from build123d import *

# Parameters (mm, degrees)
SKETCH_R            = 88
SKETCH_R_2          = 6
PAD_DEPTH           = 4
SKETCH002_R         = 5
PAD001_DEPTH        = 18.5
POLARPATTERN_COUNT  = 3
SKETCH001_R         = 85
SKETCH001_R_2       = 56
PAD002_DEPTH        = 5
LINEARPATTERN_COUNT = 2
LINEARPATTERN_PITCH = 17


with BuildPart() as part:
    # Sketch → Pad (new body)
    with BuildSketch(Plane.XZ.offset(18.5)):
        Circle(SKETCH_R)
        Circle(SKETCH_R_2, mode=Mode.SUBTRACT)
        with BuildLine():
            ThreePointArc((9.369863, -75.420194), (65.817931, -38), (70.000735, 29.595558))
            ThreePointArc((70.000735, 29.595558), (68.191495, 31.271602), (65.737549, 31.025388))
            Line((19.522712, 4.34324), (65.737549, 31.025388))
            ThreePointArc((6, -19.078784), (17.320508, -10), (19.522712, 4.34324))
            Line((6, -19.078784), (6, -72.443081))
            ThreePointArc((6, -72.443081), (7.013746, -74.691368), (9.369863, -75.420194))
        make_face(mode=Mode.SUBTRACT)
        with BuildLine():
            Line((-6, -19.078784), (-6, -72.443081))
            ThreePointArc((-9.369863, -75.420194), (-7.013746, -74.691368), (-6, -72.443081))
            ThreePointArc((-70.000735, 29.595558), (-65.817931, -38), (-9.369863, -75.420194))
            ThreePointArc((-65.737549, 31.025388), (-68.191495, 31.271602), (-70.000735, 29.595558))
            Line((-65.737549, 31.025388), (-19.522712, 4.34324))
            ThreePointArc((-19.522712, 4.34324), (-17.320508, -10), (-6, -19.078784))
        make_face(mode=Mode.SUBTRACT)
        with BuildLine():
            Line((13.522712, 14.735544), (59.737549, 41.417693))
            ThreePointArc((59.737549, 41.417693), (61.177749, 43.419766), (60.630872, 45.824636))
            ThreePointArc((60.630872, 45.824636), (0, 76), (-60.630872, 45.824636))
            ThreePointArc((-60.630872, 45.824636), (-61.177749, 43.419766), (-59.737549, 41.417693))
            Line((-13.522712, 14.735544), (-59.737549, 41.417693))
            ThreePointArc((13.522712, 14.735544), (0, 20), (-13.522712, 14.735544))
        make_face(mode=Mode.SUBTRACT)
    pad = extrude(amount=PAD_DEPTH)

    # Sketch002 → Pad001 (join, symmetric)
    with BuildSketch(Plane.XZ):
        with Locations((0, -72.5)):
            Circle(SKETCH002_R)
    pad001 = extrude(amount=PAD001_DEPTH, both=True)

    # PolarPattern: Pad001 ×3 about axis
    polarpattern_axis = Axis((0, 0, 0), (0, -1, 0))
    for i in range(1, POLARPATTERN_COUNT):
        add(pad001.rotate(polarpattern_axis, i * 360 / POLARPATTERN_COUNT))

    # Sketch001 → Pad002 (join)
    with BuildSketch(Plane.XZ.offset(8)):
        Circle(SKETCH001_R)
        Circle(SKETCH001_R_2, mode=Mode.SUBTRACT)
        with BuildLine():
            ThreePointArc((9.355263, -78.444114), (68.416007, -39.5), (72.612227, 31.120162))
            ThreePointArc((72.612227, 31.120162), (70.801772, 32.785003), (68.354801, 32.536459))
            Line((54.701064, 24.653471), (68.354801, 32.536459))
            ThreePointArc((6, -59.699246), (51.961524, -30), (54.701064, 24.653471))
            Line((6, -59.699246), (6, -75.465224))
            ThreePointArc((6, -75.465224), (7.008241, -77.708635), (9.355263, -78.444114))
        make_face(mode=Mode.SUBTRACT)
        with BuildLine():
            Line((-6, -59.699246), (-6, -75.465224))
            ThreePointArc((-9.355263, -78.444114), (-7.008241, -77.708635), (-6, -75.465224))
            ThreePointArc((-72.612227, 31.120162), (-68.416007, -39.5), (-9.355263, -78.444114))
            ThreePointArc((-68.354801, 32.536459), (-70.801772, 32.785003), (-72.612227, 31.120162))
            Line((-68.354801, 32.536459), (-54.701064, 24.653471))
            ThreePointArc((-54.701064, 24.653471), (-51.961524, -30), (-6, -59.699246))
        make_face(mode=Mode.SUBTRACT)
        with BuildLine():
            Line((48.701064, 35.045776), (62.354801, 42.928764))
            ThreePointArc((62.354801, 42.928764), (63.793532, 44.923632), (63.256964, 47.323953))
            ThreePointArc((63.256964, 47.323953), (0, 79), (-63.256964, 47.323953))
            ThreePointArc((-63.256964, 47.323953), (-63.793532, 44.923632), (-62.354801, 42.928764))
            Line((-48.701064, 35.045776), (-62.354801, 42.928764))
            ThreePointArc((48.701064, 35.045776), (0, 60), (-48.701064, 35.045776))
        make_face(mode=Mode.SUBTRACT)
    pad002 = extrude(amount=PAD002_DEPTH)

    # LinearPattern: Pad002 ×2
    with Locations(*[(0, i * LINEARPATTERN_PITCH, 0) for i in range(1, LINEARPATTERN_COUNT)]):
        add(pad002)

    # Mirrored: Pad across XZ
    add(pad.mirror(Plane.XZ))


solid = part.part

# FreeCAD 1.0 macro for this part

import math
import FreeCAD as App
import Part
import Sketcher
from FreeCAD import Vector
Q = App.Units.Quantity

doc = App.newDocument("Part")
params = doc.addObject("Spreadsheet::Sheet", "Params")
for row, (alias, value) in enumerate([
    ("sketch1_diameter", "176 mm"),
    ("sketch1_diameter2", "12 mm"),
    ("sketch1_radius", "20.000001 mm"),
    ("sketch1_radius2", "3 mm"),
    ("sketch1_radius3", "75.999999 mm"),
    ("pad1_length", "4 mm"),
    ("sketch2_diameter", "10 mm"),
    ("pad2_length", "37 mm"),
    ("sketch3_diameter", "170 mm"),
    ("sketch3_diameter2", "112 mm"),
    ("sketch3_radius", "60 mm"),
    ("sketch3_radius2", "3 mm"),
    ("sketch3_radius3", "79 mm"),
    ("pad3_length", "5 mm"),
    ("linearpattern_pitch", "17 mm"),
], start=1):
    params.set(f"A{row}", alias)
    params.set(f"B{row}", "=" + value)
    params.setAlias(f"B{row}", alias)

body = doc.addObject("PartDesign::Body", "Body")

# Sketch on XZ plane
sketch1 = doc.addObject("Sketcher::SketchObject", "Sketch")
body.addObject(sketch1)
sketch1.AttachmentSupport = (doc.XZ_Plane, [""])
sketch1.MapMode = "FlatFace"
sketch1.AttachmentOffset = App.Placement(Vector(0, 0, 18.5), App.Rotation())
sketch1.addGeometry([
    Part.Circle(Vector(0, 0, 0), Vector(0, 0, 1), 88),  # 0
    Part.ArcOfCircle(Part.Circle(Vector(0, 0, 0), Vector(0, 0, 1), 20), math.radians(167), math.radians(253)),  # 1
    Part.LineSegment(Vector(-6, -19.1, 0), Vector(-6, -72.4, 0)),  # 2
    Part.ArcOfCircle(Part.Circle(Vector(-9, -72.4, 0), Vector(0, 0, 1), 3), math.radians(-97), math.radians(0)),  # 3
    Part.ArcOfCircle(Part.Circle(Vector(0, 0, 0), Vector(0, 0, 1), 76), math.radians(157), math.radians(263)),  # 4
    Part.ArcOfCircle(Part.Circle(Vector(-67.2, 28.4, 0), Vector(0, 0, 1), 3), math.radians(60), math.radians(157)),  # 5
    Part.LineSegment(Vector(-65.7, 31, 0), Vector(-19.5, 4.3, 0)),  # 6
    Part.Circle(Vector(0, 0, 0), Vector(0, 0, 1), 6),  # 7
    Part.ArcOfCircle(Part.Circle(Vector(0, 0, 0), Vector(0, 0, 1), 76), math.radians(-83), math.radians(23)),  # 8
    Part.ArcOfCircle(Part.Circle(Vector(9, -72.4, 0), Vector(0, 0, 1), 3), math.radians(-180), math.radians(-83)),  # 9
    Part.LineSegment(Vector(6, -72.4, 0), Vector(6, -19.1, 0)),  # 10
    Part.ArcOfCircle(Part.Circle(Vector(0, 0, 0), Vector(0, 0, 1), 20), math.radians(-73), math.radians(13)),  # 11
    Part.LineSegment(Vector(19.5, 4.3, 0), Vector(65.7, 31, 0)),  # 12
    Part.ArcOfCircle(Part.Circle(Vector(67.2, 28.4, 0), Vector(0, 0, 1), 3), math.radians(23), math.radians(120)),  # 13
    Part.LineSegment(Vector(59.7, 41.4, 0), Vector(13.5, 14.7, 0)),  # 14
    Part.ArcOfCircle(Part.Circle(Vector(0, 0, 0), Vector(0, 0, 1), 20), math.radians(47), math.radians(133)),  # 15
    Part.LineSegment(Vector(-13.5, 14.7, 0), Vector(-59.7, 41.4, 0)),  # 16
    Part.ArcOfCircle(Part.Circle(Vector(-58.2, 44, 0), Vector(0, 0, 1), 3), math.radians(143), math.radians(240)),  # 17
    Part.ArcOfCircle(Part.Circle(Vector(0, 0, 0), Vector(0, 0, 1), 76), math.radians(37), math.radians(143)),  # 18
    Part.ArcOfCircle(Part.Circle(Vector(58.2, 44, 0), Vector(0, 0, 1), 3), math.radians(-60), math.radians(37)),  # 19
], False)
sketch1.addConstraint([
    Sketcher.Constraint("Coincident", 1, 2, 2, 1),
    Sketcher.Constraint("Tangent", 2, 2, 3, 2),
    Sketcher.Constraint("Tangent", 3, 1, 4, 2),
    Sketcher.Constraint("Tangent", 4, 1, 5, 2),
    Sketcher.Constraint("Tangent", 5, 1, 6, 1),
    Sketcher.Constraint("Coincident", 6, 2, 1, 1),
    Sketcher.Constraint("Tangent", 8, 1, 9, 2),
    Sketcher.Constraint("Tangent", 9, 1, 10, 1),
    Sketcher.Constraint("Coincident", 10, 2, 11, 1),
    Sketcher.Constraint("Coincident", 11, 2, 12, 1),
    Sketcher.Constraint("Tangent", 12, 2, 13, 2),
    Sketcher.Constraint("Tangent", 13, 1, 8, 2),
    Sketcher.Constraint("Coincident", 14, 2, 15, 1),
    Sketcher.Constraint("Coincident", 15, 2, 16, 1),
    Sketcher.Constraint("Tangent", 16, 2, 17, 2),
    Sketcher.Constraint("Tangent", 17, 1, 18, 2),
    Sketcher.Constraint("Tangent", 18, 1, 19, 2),
    Sketcher.Constraint("Tangent", 19, 1, 14, 1),
    Sketcher.Constraint("Vertical", 2),
    Sketcher.Constraint("Vertical", 10),
    Sketcher.Constraint("Coincident", 0, 3, -1, 1),
    Sketcher.Constraint("Coincident", 1, 3, -1, 1),
    Sketcher.Constraint("Coincident", 4, 3, -1, 1),
    Sketcher.Constraint("Coincident", 7, 3, -1, 1),
    Sketcher.Constraint("Coincident", 8, 3, -1, 1),
    Sketcher.Constraint("Coincident", 11, 3, -1, 1),
    Sketcher.Constraint("Coincident", 15, 3, -1, 1),
    Sketcher.Constraint("Coincident", 18, 3, -1, 1),
    Sketcher.Constraint("Equal", 3, 5),
    Sketcher.Constraint("Equal", 4, 8),
    Sketcher.Constraint("Equal", 5, 9),
    Sketcher.Constraint("Equal", 1, 11),
    Sketcher.Constraint("Equal", 9, 13),
    Sketcher.Constraint("Equal", 11, 15),
    Sketcher.Constraint("Equal", 13, 17),
    Sketcher.Constraint("Equal", 8, 18),
    Sketcher.Constraint("Equal", 17, 19),
    Sketcher.Constraint("Symmetric", 5, 1, 12, 2, -2),
    Sketcher.Constraint("Symmetric", 16, 2, 19, 1, -2),
    Sketcher.Constraint("Parallel", 12, 14),
    Sketcher.Constraint("Horizontal", 3, 3, 9, 3),
    Sketcher.Constraint("Equal", 12, 14),
    Sketcher.Constraint("Diameter", 0, 176.0),
    Sketcher.Constraint("Diameter", 7, 12.0),
    Sketcher.Constraint("Radius", 1, 20.000001),
    Sketcher.Constraint("Radius", 3, 3.0),
    Sketcher.Constraint("Radius", 4, 75.999999),
    Sketcher.Constraint("Angle", 6, Q("-29.999999 deg")),
    Sketcher.Constraint("DistanceX", 3, 3, -1, 1, 9.0),
    Sketcher.Constraint("DistanceX", 5, 3, 17, 3, 9.000001),
])
sketch1.setExpression("Constraints[42]", "Params.sketch1_diameter")
sketch1.setExpression("Constraints[43]", "Params.sketch1_diameter2")
sketch1.setExpression("Constraints[44]", "Params.sketch1_radius")
sketch1.setExpression("Constraints[45]", "Params.sketch1_radius2")
sketch1.setExpression("Constraints[46]", "Params.sketch1_radius3")
pad1 = doc.addObject("PartDesign::Pad", "Pad")
body.addObject(pad1)
pad1.Profile = sketch1
pad1.setExpression("Length", "Params.pad1_length")

# Sketch on XZ plane
sketch2 = doc.addObject("Sketcher::SketchObject", "Sketch001")
body.addObject(sketch2)
sketch2.AttachmentSupport = (doc.XZ_Plane, [""])
sketch2.MapMode = "FlatFace"
sketch2.addGeometry(Part.Circle(Vector(0, -72, 0), Vector(0, 0, 1), 5), False)
sketch2.addConstraint([
    Sketcher.Constraint("PointOnObject", 0, 3, -2),
    Sketcher.Constraint("Diameter", 0, 10.0),
    Sketcher.Constraint("DistanceY", 0, 3, -1, 1, 72.5),
])
sketch2.setExpression("Constraints[1]", "Params.sketch2_diameter")
pad2 = doc.addObject("PartDesign::Pad", "Pad001")
body.addObject(pad2)
pad2.Profile = sketch2
pad2.setExpression("Length", "Params.pad2_length")
pad2.Midplane = True
doc.recompute()

polarpattern = doc.addObject("PartDesign::PolarPattern", "PolarPattern")
body.addObject(polarpattern)
polarpattern.Originals = [pad2]
polarpattern.Axis = (doc.Y_Axis, [""])
polarpattern.Angle = 360
polarpattern.Occurrences = 3
body.Tip = polarpattern

# Sketch on XZ plane
sketch3 = doc.addObject("Sketcher::SketchObject", "Sketch002")
body.addObject(sketch3)
sketch3.AttachmentSupport = (doc.XZ_Plane, [""])
sketch3.MapMode = "FlatFace"
sketch3.AttachmentOffset = App.Placement(Vector(0, 0, 8), App.Rotation())
sketch3.addGeometry([
    Part.Circle(Vector(0, 0, 0), Vector(0, 0, 1), 85),  # 0
    Part.ArcOfCircle(Part.Circle(Vector(0, 0, 0), Vector(0, 0, 1), 60), math.radians(156), math.radians(264)),  # 1
    Part.LineSegment(Vector(-6, -59.7, 0), Vector(-6, -75.5, 0)),  # 2
    Part.ArcOfCircle(Part.Circle(Vector(-9, -75.5, 0), Vector(0, 0, 1), 3), math.radians(-97), math.radians(0)),  # 3
    Part.ArcOfCircle(Part.Circle(Vector(0, 0, 0), Vector(0, 0, 1), 79), math.radians(157), math.radians(263)),  # 4
    Part.ArcOfCircle(Part.Circle(Vector(-69.9, 29.9, 0), Vector(0, 0, 1), 3), math.radians(60), math.radians(157)),  # 5
    Part.LineSegment(Vector(-68.4, 32.5, 0), Vector(-54.7, 24.7, 0)),  # 6
    Part.Circle(Vector(0, 0, 0), Vector(0, 0, 1), 56),  # 7
    Part.ArcOfCircle(Part.Circle(Vector(0, 0, 0), Vector(0, 0, 1), 79), math.radians(-83), math.radians(23)),  # 8
    Part.ArcOfCircle(Part.Circle(Vector(9, -75.5, 0), Vector(0, 0, 1), 3), math.radians(-180), math.radians(-83)),  # 9
    Part.LineSegment(Vector(6, -75.5, 0), Vector(6, -59.7, 0)),  # 10
    Part.ArcOfCircle(Part.Circle(Vector(0, 0, 0), Vector(0, 0, 1), 60), math.radians(-84), math.radians(24)),  # 11
    Part.LineSegment(Vector(54.7, 24.7, 0), Vector(68.4, 32.5, 0)),  # 12
    Part.ArcOfCircle(Part.Circle(Vector(69.9, 29.9, 0), Vector(0, 0, 1), 3), math.radians(23), math.radians(120)),  # 13
    Part.LineSegment(Vector(62.4, 42.9, 0), Vector(48.7, 35, 0)),  # 14
    Part.ArcOfCircle(Part.Circle(Vector(0, 0, 0), Vector(0, 0, 1), 60), math.radians(36), math.radians(144)),  # 15
    Part.LineSegment(Vector(-48.7, 35, 0), Vector(-62.4, 42.9, 0)),  # 16
    Part.ArcOfCircle(Part.Circle(Vector(-60.9, 45.5, 0), Vector(0, 0, 1), 3), math.radians(143), math.radians(240)),  # 17
    Part.ArcOfCircle(Part.Circle(Vector(0, 0, 0), Vector(0, 0, 1), 79), math.radians(37), math.radians(143)),  # 18
    Part.ArcOfCircle(Part.Circle(Vector(60.9, 45.5, 0), Vector(0, 0, 1), 3), math.radians(-60), math.radians(37)),  # 19
], False)
sketch3.addConstraint([
    Sketcher.Constraint("Coincident", 1, 2, 2, 1),
    Sketcher.Constraint("Tangent", 2, 2, 3, 2),
    Sketcher.Constraint("Tangent", 3, 1, 4, 2),
    Sketcher.Constraint("Tangent", 4, 1, 5, 2),
    Sketcher.Constraint("Tangent", 5, 1, 6, 1),
    Sketcher.Constraint("Coincident", 6, 2, 1, 1),
    Sketcher.Constraint("Tangent", 8, 1, 9, 2),
    Sketcher.Constraint("Tangent", 9, 1, 10, 1),
    Sketcher.Constraint("Coincident", 10, 2, 11, 1),
    Sketcher.Constraint("Coincident", 11, 2, 12, 1),
    Sketcher.Constraint("Tangent", 12, 2, 13, 2),
    Sketcher.Constraint("Tangent", 13, 1, 8, 2),
    Sketcher.Constraint("Coincident", 14, 2, 15, 1),
    Sketcher.Constraint("Coincident", 15, 2, 16, 1),
    Sketcher.Constraint("Tangent", 16, 2, 17, 2),
    Sketcher.Constraint("Tangent", 17, 1, 18, 2),
    Sketcher.Constraint("Tangent", 18, 1, 19, 2),
    Sketcher.Constraint("Tangent", 19, 1, 14, 1),
    Sketcher.Constraint("Vertical", 2),
    Sketcher.Constraint("Vertical", 10),
    Sketcher.Constraint("Coincident", 0, 3, -1, 1),
    Sketcher.Constraint("Coincident", 1, 3, -1, 1),
    Sketcher.Constraint("Coincident", 4, 3, -1, 1),
    Sketcher.Constraint("Coincident", 7, 3, -1, 1),
    Sketcher.Constraint("Coincident", 8, 3, -1, 1),
    Sketcher.Constraint("Coincident", 11, 3, -1, 1),
    Sketcher.Constraint("Coincident", 15, 3, -1, 1),
    Sketcher.Constraint("Coincident", 18, 3, -1, 1),
    Sketcher.Constraint("Equal", 3, 5),
    Sketcher.Constraint("Equal", 4, 8),
    Sketcher.Constraint("Equal", 5, 9),
    Sketcher.Constraint("Equal", 1, 11),
    Sketcher.Constraint("Equal", 9, 13),
    Sketcher.Constraint("Equal", 11, 15),
    Sketcher.Constraint("Equal", 13, 17),
    Sketcher.Constraint("Equal", 8, 18),
    Sketcher.Constraint("Equal", 17, 19),
    Sketcher.Constraint("Symmetric", 5, 1, 12, 2, -2),
    Sketcher.Constraint("Symmetric", 16, 2, 19, 1, -2),
    Sketcher.Constraint("Parallel", 12, 14),
    Sketcher.Constraint("Horizontal", 3, 3, 9, 3),
    Sketcher.Constraint("Equal", 12, 14),
    Sketcher.Constraint("Diameter", 0, 170.0),
    Sketcher.Constraint("Diameter", 7, 112.0),
    Sketcher.Constraint("Radius", 1, 60.0),
    Sketcher.Constraint("Radius", 3, 3.0),
    Sketcher.Constraint("Radius", 4, 79.0),
    Sketcher.Constraint("Angle", 6, Q("-29.999998 deg")),
    Sketcher.Constraint("DistanceX", 3, 3, -1, 1, 9.0),
    Sketcher.Constraint("DistanceX", 5, 3, 17, 3, 9.0),
])
sketch3.setExpression("Constraints[42]", "Params.sketch3_diameter")
sketch3.setExpression("Constraints[43]", "Params.sketch3_diameter2")
sketch3.setExpression("Constraints[44]", "Params.sketch3_radius")
sketch3.setExpression("Constraints[45]", "Params.sketch3_radius2")
sketch3.setExpression("Constraints[46]", "Params.sketch3_radius3")
pad3 = doc.addObject("PartDesign::Pad", "Pad002")
body.addObject(pad3)
pad3.Profile = sketch3
pad3.setExpression("Length", "Params.pad3_length")
doc.recompute()

linearpattern = doc.addObject("PartDesign::LinearPattern", "LinearPattern")
body.addObject(linearpattern)
linearpattern.Originals = [pad3]
linearpattern.Direction = (doc.Y_Axis, [""])
linearpattern.Mode = "offset"
linearpattern.setExpression("Offset", "Params.linearpattern_pitch")
linearpattern.Occurrences = 2
body.Tip = linearpattern
doc.recompute()

mirrored = doc.addObject("PartDesign::Mirrored", "Mirrored")
body.addObject(mirrored)
mirrored.Originals = [pad1]
mirrored.MirrorPlane = (doc.XZ_Plane, [""])
body.Tip = mirrored

doc.recompute()
